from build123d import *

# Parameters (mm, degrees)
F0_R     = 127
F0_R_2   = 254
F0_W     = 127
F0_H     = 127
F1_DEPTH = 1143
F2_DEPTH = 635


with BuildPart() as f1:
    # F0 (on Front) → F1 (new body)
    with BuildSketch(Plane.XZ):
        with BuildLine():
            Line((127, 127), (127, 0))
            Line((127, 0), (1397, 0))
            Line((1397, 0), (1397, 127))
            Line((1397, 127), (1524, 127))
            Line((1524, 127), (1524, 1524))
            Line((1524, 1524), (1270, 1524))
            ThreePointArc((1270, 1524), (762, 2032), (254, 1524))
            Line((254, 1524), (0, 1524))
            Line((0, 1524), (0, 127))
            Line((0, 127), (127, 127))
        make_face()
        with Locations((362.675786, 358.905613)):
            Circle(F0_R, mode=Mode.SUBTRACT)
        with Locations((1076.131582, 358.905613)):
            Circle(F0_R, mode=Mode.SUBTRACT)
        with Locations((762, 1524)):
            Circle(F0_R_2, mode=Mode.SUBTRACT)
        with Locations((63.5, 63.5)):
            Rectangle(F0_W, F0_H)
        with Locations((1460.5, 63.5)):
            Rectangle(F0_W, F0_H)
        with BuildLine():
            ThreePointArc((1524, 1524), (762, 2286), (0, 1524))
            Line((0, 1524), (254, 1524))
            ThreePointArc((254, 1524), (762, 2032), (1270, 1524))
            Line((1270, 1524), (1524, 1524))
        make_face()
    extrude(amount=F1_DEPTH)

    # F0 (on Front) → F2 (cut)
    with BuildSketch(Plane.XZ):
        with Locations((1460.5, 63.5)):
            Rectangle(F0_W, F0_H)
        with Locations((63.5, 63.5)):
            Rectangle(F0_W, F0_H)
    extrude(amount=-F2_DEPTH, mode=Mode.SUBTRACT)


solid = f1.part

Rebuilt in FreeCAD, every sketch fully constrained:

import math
import FreeCAD as App
import Part
import Sketcher
from FreeCAD import Vector
Q = App.Units.Quantity

doc = App.newDocument("Part")
body = doc.addObject("PartDesign::Body", "Body")

# Sketch on XZ plane
sketch1 = body.newObject("Sketcher::SketchObject", "Sketch")
sketch1.AttachmentSupport = (doc.getObject("XZ_Plane"), [""])
sketch1.MapMode = "FlatFace"
sketch1.addGeometry([
    Part.LineSegment(Vector(0, 1524, 0), Vector(0, 0, 0)),  # 0
    Part.LineSegment(Vector(0, 0, 0), Vector(1524, 0, 0)),  # 1
    Part.LineSegment(Vector(1524, 0, 0), Vector(1524, 1524, 0)),  # 2
    Part.ArcOfCircle(Part.Circle(Vector(762, 1524, 0), Vector(0, 0, 1), 762), math.radians(0), math.radians(180)),  # 3
    Part.Circle(Vector(363, 359, 0), Vector(0, 0, 1), 127),  # 4
    Part.Circle(Vector(1076, 359, 0), Vector(0, 0, 1), 127),  # 5
    Part.Circle(Vector(762, 1524, 0), Vector(0, 0, 1), 254),  # 6
], False)
sketch1.addConstraint([
    Sketcher.Constraint("Coincident", 0, 2, 1, 1),
    Sketcher.Constraint("Coincident", 1, 2, 2, 1),
    Sketcher.Constraint("Coincident", 2, 2, 3, 1),
    Sketcher.Constraint("Coincident", 3, 2, 0, 1),
    Sketcher.Constraint("Vertical", 0),
    Sketcher.Constraint("Horizontal", 1),
    Sketcher.Constraint("Vertical", 2),
    Sketcher.Constraint("Coincident", 0, 2, -1, 1),
    Sketcher.Constraint("Coincident", 6, 3, 3, 3),
    Sketcher.Constraint("Equal", 4, 5),
    Sketcher.Constraint("Horizontal", 4, 3, 5, 3),
    Sketcher.Constraint("Horizontal", 6, 3, 2, 2),
    Sketcher.Constraint("Equal", 1, 0),
    Sketcher.Constraint("Equal", 0, 2),
    Sketcher.Constraint("Diameter", 4, Q("10 in")),
    Sketcher.Constraint("Diameter", 6, Q("20 in")),
    Sketcher.Constraint("Radius", 3, Q("30 in")),
    Sketcher.Constraint("DistanceX", -1, 1, 5, 3, Q("1076.131582 mm")),
    Sketcher.Constraint("DistanceX", -1, 1, 4, 3, Q("362.675786 mm")),
    Sketcher.Constraint("DistanceY", -1, 1, 4, 3, Q("358.905613 mm")),
])
pad1 = body.newObject("PartDesign::Pad", "Pad")
pad1.Profile = sketch1
pad1.Length = Q("45 in")

# Sketch on XZ plane
sketch2 = body.newObject("Sketcher::SketchObject", "Sketch001")
sketch2.AttachmentSupport = (doc.getObject("XZ_Plane"), [""])
sketch2.MapMode = "FlatFace"
sketch2.addGeometry([
    Part.LineSegment(Vector(1397, 127, 0), Vector(1397, 0, 0)),  # 0
    Part.LineSegment(Vector(1397, 0, 0), Vector(1524, 0, 0)),  # 1
    Part.LineSegment(Vector(1524, 0, 0), Vector(1524, 127, 0)),  # 2
    Part.LineSegment(Vector(1524, 127, 0), Vector(1397, 127, 0)),  # 3
    Part.LineSegment(Vector(0, 127, 0), Vector(0, 0, 0)),  # 4
    Part.LineSegment(Vector(0, 0, 0), Vector(127, 0, 0)),  # 5
    Part.LineSegment(Vector(127, 0, 0), Vector(127, 127, 0)),  # 6
    Part.LineSegment(Vector(127, 127, 0), Vector(0, 127, 0)),  # 7
], False)
sketch2.addConstraint([
    Sketcher.Constraint("Coincident", 0, 2, 1, 1),
    Sketcher.Constraint("Coincident", 1, 2, 2, 1),
    Sketcher.Constraint("Coincident", 2, 2, 3, 1),
    Sketcher.Constraint("Coincident", 3, 2, 0, 1),
    Sketcher.Constraint("Coincident", 4, 2, 5, 1),
    Sketcher.Constraint("Coincident", 5, 2, 6, 1),
    Sketcher.Constraint("Coincident", 6, 2, 7, 1),
    Sketcher.Constraint("Coincident", 7, 2, 4, 1),
    Sketcher.Constraint("Vertical", 0),
    Sketcher.Constraint("Horizontal", 1),
    Sketcher.Constraint("Vertical", 2),
    Sketcher.Constraint("Horizontal", 3),
    Sketcher.Constraint("Vertical", 4),
    Sketcher.Constraint("Horizontal", 5),
    Sketcher.Constraint("Vertical", 6),
    Sketcher.Constraint("Horizontal", 7),
    Sketcher.Constraint("Coincident", 4, 2, -1, 1),
    Sketcher.Constraint("PointOnObject", 0, 2, -1),
    Sketcher.Constraint("Horizontal", 3, 2, 6, 2),
    Sketcher.Constraint("Equal", 3, 5),
    Sketcher.Constraint("Equal", 7, 0),
    Sketcher.Constraint("DistanceX", 1, 1, 1, 2, Q("5 in")),
    Sketcher.Constraint("DistanceX", -1, 1, 0, 2, Q("55 in")),
])
pocket1 = body.newObject("PartDesign::Pocket", "Pocket")
pocket1.Profile = sketch2
pocket1.Length = Q("25 in")

doc.recompute()
